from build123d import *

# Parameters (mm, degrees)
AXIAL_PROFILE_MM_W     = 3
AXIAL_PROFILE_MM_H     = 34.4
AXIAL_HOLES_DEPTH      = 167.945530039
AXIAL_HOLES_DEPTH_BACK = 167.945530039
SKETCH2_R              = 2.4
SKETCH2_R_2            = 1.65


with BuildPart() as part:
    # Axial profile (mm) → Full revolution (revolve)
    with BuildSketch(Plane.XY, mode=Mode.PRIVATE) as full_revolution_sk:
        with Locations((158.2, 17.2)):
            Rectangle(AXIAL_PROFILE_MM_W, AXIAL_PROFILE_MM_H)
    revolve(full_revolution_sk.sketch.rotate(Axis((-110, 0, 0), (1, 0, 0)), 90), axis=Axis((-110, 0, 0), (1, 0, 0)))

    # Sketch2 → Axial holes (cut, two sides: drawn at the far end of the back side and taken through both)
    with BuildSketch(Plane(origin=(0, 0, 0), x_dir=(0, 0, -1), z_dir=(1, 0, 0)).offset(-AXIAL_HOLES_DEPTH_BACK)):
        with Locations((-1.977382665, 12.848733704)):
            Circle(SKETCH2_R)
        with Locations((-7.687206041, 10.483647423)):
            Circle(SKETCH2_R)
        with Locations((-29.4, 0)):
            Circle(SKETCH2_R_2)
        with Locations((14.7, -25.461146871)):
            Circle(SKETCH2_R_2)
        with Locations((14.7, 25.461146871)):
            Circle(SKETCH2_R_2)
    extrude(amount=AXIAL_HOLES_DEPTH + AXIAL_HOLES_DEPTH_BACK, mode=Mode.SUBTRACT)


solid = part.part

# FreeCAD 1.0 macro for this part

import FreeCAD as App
import Part
import Sketcher

V = App.Vector
Q = App.Units.Quantity

doc = App.newDocument("Part")
params = doc.addObject("Spreadsheet::Sheet", "Params")
for row, (alias, value) in enumerate([
    ("sketch1_width", "3 mm"),
    ("sketch1_height", "34.4 mm"),
    ("revolution_angle", "360 deg"),
    ("sketch2_diameter", "4.8 mm"),
    ("sketch2_diameter2", "3.3 mm"),
], start=1):
    params.set(f"A{row}", alias)
    params.set(f"B{row}", "=" + value)
    params.setAlias(f"B{row}", alias)

body = doc.addObject("PartDesign::Body", "Body")

# Sketch on XY plane
sketch1 = body.newObject("Sketcher::SketchObject", "Sketch")
sketch1.AttachmentSupport = (doc.getObject("XY_Plane"), [""])
sketch1.MapMode = "FlatFace"
sketch1.addGeometry(Part.LineSegment(V(156.7, 34.4, 0), V(156.7, 0, 0)), False)
sketch1.addGeometry(Part.LineSegment(V(156.7, 0, 0), V(159.7, 0, 0)), False)
sketch1.addGeometry(Part.LineSegment(V(159.7, 0, 0), V(159.7, 34.4, 0)), False)
sketch1.addGeometry(Part.LineSegment(V(159.7, 34.4, 0), V(156.7, 34.4, 0)), False)
sketch1.addConstraint(Sketcher.Constraint("Coincident", 0, 2, 1, 1))
sketch1.addConstraint(Sketcher.Constraint("Coincident", 1, 2, 2, 1))
sketch1.addConstraint(Sketcher.Constraint("Coincident", 2, 2, 3, 1))
sketch1.addConstraint(Sketcher.Constraint("Coincident", 3, 2, 0, 1))
sketch1.addConstraint(Sketcher.Constraint("Vertical", 0))
sketch1.addConstraint(Sketcher.Constraint("Horizontal", 1))
sketch1.addConstraint(Sketcher.Constraint("Vertical", 2))
sketch1.addConstraint(Sketcher.Constraint("Horizontal", 3))
sketch1.addConstraint(Sketcher.Constraint("PointOnObject", 0, 2, -1))
sketch1.addConstraint(Sketcher.Constraint("DistanceX", 1, 1, 1, 2, Q("3 mm")))
sketch1.addConstraint(Sketcher.Constraint("DistanceY", 0, 2, 0, 1, Q("34.4 mm")))
sketch1.addConstraint(Sketcher.Constraint("DistanceX", -1, 1, 0, 2, Q("156.7 mm")))
sketch1.setExpression("Constraints[9]", "Params.sketch1_width")
sketch1.setExpression("Constraints[10]", "Params.sketch1_height")
revolution = body.newObject("PartDesign::Revolution", "Revolution")
revolution.Profile = sketch1
revolution.ReferenceAxis = (sketch1, ["H_Axis"])
revolution.setExpression("Angle", "Params.revolution_angle")

# Sketch on YZ plane
sketch2 = body.newObject("Sketcher::SketchObject", "Sketch001")
sketch2.AttachmentSupport = (doc.getObject("YZ_Plane"), [""])
sketch2.MapMode = "FlatFace"
sketch2.addGeometry(Part.Circle(V(12.8, 2, 0), V(0, 0, 1), 2.4), False)
sketch2.addGeometry(Part.Circle(V(10.5, 7.7, 0), V(0, 0, 1), 2.4), False)
sketch2.addGeometry(Part.Circle(V(0, 29.4, 0), V(0, 0, 1), 1.6), False)
sketch2.addGeometry(Part.Circle(V(-25.5, -14.7, 0), V(0, 0, 1), 1.6), False)
sketch2.addGeometry(Part.Circle(V(25.5, -14.7, 0), V(0, 0, 1), 1.6), False)
sketch2.addConstraint(Sketcher.Constraint("Equal", 0, 1))
sketch2.addConstraint(Sketcher.Constraint("Equal", 2, 3))
sketch2.addConstraint(Sketcher.Constraint("Equal", 3, 4))
sketch2.addConstraint(Sketcher.Constraint("Symmetric", 3, 3, 4, 3, -2))
sketch2.addConstraint(Sketcher.Constraint("PointOnObject", 2, 3, -2))
sketch2.addConstraint(Sketcher.Constraint("Diameter", 0, Q("4.8 mm")))
sketch2.addConstraint(Sketcher.Constraint("Diameter", 2, Q("3.3 mm")))
sketch2.addConstraint(Sketcher.Constraint("DistanceY", -1, 1, 2, 3, Q("29.4 mm")))
sketch2.addConstraint(Sketcher.Constraint("DistanceY", 3, 3, -1, 1, Q("14.7 mm")))
sketch2.addConstraint(Sketcher.Constraint("DistanceX", 1, 3, 4, 3, Q("14.977499 mm")))
sketch2.addConstraint(Sketcher.Constraint("DistanceX", 3, 3, 0, 3, Q("38.309881 mm")))
sketch2.addConstraint(Sketcher.Constraint("DistanceX", -1, 1, 0, 3, Q("12.848734 mm")))
sketch2.addConstraint(Sketcher.Constraint("DistanceY", -1, 1, 0, 3, Q("1.977383 mm")))
sketch2.addConstraint(Sketcher.Constraint("DistanceY", -1, 1, 1, 3, Q("7.687206 mm")))
sketch2.setExpression("Constraints[5]", "Params.sketch2_diameter")
sketch2.setExpression("Constraints[6]", "Params.sketch2_diameter2")
pocket1 = body.newObject("PartDesign::Pocket", "Pocket")
pocket1.Profile = sketch2
pocket1.Type = "ThroughAll"
pocket1.Midplane = True

doc.recompute()
